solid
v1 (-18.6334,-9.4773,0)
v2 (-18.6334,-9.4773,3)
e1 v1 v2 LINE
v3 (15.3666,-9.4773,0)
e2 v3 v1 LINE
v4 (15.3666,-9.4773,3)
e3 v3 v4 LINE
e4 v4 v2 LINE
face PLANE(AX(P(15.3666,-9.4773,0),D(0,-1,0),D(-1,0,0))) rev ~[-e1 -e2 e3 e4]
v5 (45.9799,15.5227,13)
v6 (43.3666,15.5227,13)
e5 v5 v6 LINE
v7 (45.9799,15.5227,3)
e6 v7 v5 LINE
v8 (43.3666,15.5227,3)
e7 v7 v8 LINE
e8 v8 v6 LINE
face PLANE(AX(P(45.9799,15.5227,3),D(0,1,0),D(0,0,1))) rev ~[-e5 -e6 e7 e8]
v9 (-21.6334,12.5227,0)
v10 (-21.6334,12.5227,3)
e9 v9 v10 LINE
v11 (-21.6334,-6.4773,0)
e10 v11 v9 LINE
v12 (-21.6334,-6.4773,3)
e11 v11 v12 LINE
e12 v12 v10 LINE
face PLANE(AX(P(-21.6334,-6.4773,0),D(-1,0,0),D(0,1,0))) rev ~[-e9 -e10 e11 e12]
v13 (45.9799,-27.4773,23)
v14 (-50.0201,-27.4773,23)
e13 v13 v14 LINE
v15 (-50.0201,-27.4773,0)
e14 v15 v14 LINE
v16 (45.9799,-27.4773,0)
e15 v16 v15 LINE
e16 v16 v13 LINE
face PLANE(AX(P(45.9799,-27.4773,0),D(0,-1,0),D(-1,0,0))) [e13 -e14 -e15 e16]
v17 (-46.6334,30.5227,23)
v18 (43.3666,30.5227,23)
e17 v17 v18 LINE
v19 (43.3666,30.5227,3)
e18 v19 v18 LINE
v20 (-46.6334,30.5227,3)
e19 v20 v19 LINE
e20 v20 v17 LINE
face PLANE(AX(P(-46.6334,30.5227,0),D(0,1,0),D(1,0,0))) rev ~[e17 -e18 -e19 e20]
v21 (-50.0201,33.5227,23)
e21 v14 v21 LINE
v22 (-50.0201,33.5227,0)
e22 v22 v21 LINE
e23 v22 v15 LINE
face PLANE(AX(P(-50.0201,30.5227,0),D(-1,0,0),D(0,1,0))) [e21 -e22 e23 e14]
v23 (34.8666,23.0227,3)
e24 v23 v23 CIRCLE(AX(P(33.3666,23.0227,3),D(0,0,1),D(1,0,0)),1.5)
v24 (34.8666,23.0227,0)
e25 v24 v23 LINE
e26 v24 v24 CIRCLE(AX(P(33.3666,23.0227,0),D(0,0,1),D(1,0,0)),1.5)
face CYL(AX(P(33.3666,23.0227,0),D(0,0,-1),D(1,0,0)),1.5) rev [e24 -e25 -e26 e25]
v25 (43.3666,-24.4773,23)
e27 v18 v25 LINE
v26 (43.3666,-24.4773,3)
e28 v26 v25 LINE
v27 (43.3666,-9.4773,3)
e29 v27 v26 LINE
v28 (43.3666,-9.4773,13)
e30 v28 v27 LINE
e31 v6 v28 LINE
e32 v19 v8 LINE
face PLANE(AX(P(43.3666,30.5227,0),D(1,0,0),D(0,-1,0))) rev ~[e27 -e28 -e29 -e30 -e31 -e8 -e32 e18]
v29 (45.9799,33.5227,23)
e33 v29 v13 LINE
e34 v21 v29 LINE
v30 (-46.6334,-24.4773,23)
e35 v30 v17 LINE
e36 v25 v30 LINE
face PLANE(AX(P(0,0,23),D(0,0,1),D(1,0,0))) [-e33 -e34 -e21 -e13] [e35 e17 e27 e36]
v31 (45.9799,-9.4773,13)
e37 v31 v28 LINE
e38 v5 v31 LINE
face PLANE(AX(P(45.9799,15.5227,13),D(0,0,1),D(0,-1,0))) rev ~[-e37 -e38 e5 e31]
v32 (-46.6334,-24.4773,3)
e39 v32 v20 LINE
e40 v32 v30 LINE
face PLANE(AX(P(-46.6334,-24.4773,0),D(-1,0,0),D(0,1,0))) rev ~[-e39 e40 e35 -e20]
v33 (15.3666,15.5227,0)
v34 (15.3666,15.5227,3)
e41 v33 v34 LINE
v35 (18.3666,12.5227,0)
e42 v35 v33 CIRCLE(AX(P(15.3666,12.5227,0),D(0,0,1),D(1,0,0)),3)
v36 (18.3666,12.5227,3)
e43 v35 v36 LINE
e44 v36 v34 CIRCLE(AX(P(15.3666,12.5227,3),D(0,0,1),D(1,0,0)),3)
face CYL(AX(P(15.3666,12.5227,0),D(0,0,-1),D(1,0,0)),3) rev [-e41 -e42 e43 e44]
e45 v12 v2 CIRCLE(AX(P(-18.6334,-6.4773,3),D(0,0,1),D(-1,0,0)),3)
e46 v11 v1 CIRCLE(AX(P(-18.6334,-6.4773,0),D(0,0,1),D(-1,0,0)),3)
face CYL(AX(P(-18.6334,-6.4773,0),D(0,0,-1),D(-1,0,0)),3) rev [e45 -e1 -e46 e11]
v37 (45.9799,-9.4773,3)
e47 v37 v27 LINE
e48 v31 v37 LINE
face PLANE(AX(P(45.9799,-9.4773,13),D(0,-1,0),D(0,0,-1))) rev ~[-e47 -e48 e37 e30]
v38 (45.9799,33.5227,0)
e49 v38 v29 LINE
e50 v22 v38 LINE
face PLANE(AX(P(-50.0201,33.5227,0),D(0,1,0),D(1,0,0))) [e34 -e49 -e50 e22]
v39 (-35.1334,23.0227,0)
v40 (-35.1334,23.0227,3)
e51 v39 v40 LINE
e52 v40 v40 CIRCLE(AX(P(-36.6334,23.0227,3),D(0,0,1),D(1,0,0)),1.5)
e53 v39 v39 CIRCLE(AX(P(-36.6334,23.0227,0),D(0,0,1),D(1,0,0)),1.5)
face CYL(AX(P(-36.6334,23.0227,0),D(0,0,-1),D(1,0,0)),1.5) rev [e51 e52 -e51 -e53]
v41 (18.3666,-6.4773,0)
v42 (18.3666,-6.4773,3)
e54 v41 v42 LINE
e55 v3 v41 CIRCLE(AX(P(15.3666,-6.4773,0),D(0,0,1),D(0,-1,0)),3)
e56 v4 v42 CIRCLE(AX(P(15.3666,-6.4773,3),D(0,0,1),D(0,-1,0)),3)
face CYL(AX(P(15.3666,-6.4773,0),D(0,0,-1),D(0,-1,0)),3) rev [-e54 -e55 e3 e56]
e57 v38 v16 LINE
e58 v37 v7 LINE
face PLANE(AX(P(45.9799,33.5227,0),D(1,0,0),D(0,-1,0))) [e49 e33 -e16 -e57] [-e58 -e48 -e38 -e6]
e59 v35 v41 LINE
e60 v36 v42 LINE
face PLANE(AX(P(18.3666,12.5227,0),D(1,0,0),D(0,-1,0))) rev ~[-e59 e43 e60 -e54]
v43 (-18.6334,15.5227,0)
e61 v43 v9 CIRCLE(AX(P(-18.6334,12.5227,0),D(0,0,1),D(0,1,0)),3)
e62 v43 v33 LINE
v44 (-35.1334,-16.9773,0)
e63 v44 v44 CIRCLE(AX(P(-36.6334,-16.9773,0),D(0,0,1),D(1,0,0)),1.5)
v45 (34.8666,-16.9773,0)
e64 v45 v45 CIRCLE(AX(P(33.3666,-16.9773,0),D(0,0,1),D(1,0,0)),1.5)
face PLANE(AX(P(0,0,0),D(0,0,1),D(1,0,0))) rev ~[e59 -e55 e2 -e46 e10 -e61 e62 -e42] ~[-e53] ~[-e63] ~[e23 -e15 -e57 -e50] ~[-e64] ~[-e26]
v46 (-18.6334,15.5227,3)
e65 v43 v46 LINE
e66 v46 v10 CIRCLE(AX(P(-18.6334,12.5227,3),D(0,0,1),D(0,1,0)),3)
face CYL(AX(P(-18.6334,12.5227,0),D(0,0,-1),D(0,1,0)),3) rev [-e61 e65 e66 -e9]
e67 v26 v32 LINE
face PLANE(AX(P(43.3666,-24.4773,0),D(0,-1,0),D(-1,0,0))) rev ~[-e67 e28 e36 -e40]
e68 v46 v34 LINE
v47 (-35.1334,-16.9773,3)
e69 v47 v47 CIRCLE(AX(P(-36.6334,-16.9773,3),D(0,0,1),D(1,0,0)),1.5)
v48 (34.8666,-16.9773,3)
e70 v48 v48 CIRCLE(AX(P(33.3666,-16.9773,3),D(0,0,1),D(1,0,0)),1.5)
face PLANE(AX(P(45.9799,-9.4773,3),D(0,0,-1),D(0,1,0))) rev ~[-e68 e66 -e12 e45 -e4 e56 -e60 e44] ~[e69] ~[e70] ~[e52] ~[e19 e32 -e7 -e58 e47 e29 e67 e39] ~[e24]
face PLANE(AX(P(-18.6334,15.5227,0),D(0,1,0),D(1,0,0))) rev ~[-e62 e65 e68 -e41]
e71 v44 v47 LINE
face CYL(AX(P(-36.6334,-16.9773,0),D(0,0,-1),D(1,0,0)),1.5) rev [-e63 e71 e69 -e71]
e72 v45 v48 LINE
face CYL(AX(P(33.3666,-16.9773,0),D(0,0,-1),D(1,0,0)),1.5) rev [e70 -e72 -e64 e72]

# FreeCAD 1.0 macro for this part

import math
import FreeCAD as App
import Part
import Sketcher
from FreeCAD import Vector
Q = App.Units.Quantity

doc = App.newDocument("Part")
body = doc.addObject("PartDesign::Body", "Body")

# Sketch on XY plane
sketch1 = body.newObject("Sketcher::SketchObject", "Sketch")
sketch1.AttachmentSupport = (doc.getObject("XY_Plane"), [""])
sketch1.MapMode = "FlatFace"
sketch1.addGeometry([
    Part.LineSegment(Vector(46, 34, 0), Vector(-50, 34, 0)),  # 0
    Part.LineSegment(Vector(-50, 34, 0), Vector(-50, -27, 0)),  # 1
    Part.LineSegment(Vector(-50, -27, 0), Vector(46, -27, 0)),  # 2
    Part.LineSegment(Vector(46, -27, 0), Vector(46, 34, 0)),  # 3
    Part.LineSegment(Vector(-47, -24, 0), Vector(-47, 31, 0)),  # 4
    Part.LineSegment(Vector(-47, 31, 0), Vector(43, 31, 0)),  # 5
    Part.LineSegment(Vector(43, 31, 0), Vector(43, -24, 0)),  # 6
    Part.LineSegment(Vector(43, -24, 0), Vector(-47, -24, 0)),  # 7
], False)
sketch1.addConstraint([
    Sketcher.Constraint("Coincident", 0, 2, 1, 1),
    Sketcher.Constraint("Coincident", 1, 2, 2, 1),
    Sketcher.Constraint("Coincident", 2, 2, 3, 1),
    Sketcher.Constraint("Coincident", 3, 2, 0, 1),
    Sketcher.Constraint("Coincident", 4, 2, 5, 1),
    Sketcher.Constraint("Coincident", 5, 2, 6, 1),
    Sketcher.Constraint("Coincident", 6, 2, 7, 1),
    Sketcher.Constraint("Coincident", 7, 2, 4, 1),
    Sketcher.Constraint("Horizontal", 0),
    Sketcher.Constraint("Vertical", 1),
    Sketcher.Constraint("Horizontal", 2),
    Sketcher.Constraint("Vertical", 3),
    Sketcher.Constraint("Vertical", 4),
    Sketcher.Constraint("Horizontal", 5),
    Sketcher.Constraint("Vertical", 6),
    Sketcher.Constraint("Horizontal", 7),
    Sketcher.Constraint("DistanceX", 0, 2, 0, 1, Q("96 mm")),
    Sketcher.Constraint("DistanceX", 5, 1, 5, 2, Q("90 mm")),
    Sketcher.Constraint("DistanceY", 1, 2, 1, 1, Q("61 mm")),
    Sketcher.Constraint("DistanceY", 4, 1, 4, 2, Q("55 mm")),
    Sketcher.Constraint("DistanceY", 4, 2, 0, 2, Q("3 mm")),
    Sketcher.Constraint("DistanceX", 0, 2, -1, 1, Q("50.02 mm")),
    Sketcher.Constraint("DistanceY", -1, 1, 0, 2, Q("33.5227 mm")),
    Sketcher.Constraint("DistanceX", 4, 2, -1, 1, Q("46.6334 mm")),
])
pad1 = body.newObject("PartDesign::Pad", "Pad")
pad1.Profile = sketch1
pad1.Length = 23

# Sketch on XY plane
sketch2 = body.newObject("Sketcher::SketchObject", "Sketch001")
sketch2.AttachmentSupport = (doc.getObject("XY_Plane"), [""])
sketch2.MapMode = "FlatFace"
sketch2.addGeometry([
    Part.LineSegment(Vector(43.4, 30.5, 0), Vector(-46.6, 30.5, 0)),  # 0
    Part.LineSegment(Vector(-46.6, 30.5, 0), Vector(-46.6, -24.5, 0)),  # 1
    Part.LineSegment(Vector(-46.6, -24.5, 0), Vector(43.4, -24.5, 0)),  # 2
    Part.LineSegment(Vector(43.4, -24.5, 0), Vector(43.4, 30.5, 0)),  # 3
    Part.Circle(Vector(-36.6, -17, 0), Vector(0, 0, 1), 1.5),  # 4
    Part.Circle(Vector(33.4, -17, 0), Vector(0, 0, 1), 1.5),  # 5
    Part.Circle(Vector(-36.6, 23, 0), Vector(0, 0, 1), 1.5),  # 6
    Part.ArcOfCircle(Part.Circle(Vector(-18.6, 12.5, 0), Vector(0, 0, 1), 3), math.radians(90), math.radians(180)),  # 7
    Part.LineSegment(Vector(-18.6, 15.5, 0), Vector(15.4, 15.5, 0)),  # 8
    Part.ArcOfCircle(Part.Circle(Vector(15.4, 12.5, 0), Vector(0, 0, 1), 3), math.radians(0), math.radians(90)),  # 9
    Part.LineSegment(Vector(18.4, 12.5, 0), Vector(18.4, -6.5, 0)),  # 10
    Part.ArcOfCircle(Part.Circle(Vector(15.4, -6.5, 0), Vector(0, 0, 1), 3), math.radians(-90), math.radians(0)),  # 11
    Part.LineSegment(Vector(15.4, -9.5, 0), Vector(-18.6, -9.5, 0)),  # 12
    Part.ArcOfCircle(Part.Circle(Vector(-18.6, -6.5, 0), Vector(0, 0, 1), 3), math.radians(180), math.radians(270)),  # 13
    Part.LineSegment(Vector(-21.6, -6.5, 0), Vector(-21.6, 12.5, 0)),  # 14
    Part.Circle(Vector(33.4, 23, 0), Vector(0, 0, 1), 1.5),  # 15
], False)
sketch2.addConstraint([
    Sketcher.Constraint("Coincident", 0, 2, 1, 1),
    Sketcher.Constraint("Coincident", 1, 2, 2, 1),
    Sketcher.Constraint("Coincident", 2, 2, 3, 1),
    Sketcher.Constraint("Coincident", 3, 2, 0, 1),
    Sketcher.Constraint("Tangent", 7, 1, 8, 1),
    Sketcher.Constraint("Tangent", 8, 2, 9, 2),
    Sketcher.Constraint("Tangent", 9, 1, 10, 1),
    Sketcher.Constraint("Tangent", 10, 2, 11, 2),
    Sketcher.Constraint("Tangent", 11, 1, 12, 1),
    Sketcher.Constraint("Tangent", 12, 2, 13, 2),
    Sketcher.Constraint("Tangent", 13, 1, 14, 1),
    Sketcher.Constraint("Tangent", 14, 2, 7, 2),
    Sketcher.Constraint("Horizontal", 0),
    Sketcher.Constraint("Vertical", 1),
    Sketcher.Constraint("Horizontal", 2),
    Sketcher.Constraint("Vertical", 3),
    Sketcher.Constraint("Horizontal", 8),
    Sketcher.Constraint("Vertical", 10),
    Sketcher.Constraint("Horizontal", 12),
    Sketcher.Constraint("Vertical", 14),
    Sketcher.Constraint("Equal", 4, 5),
    Sketcher.Constraint("Equal", 5, 6),
    Sketcher.Constraint("Equal", 7, 9),
    Sketcher.Constraint("Equal", 9, 11),
    Sketcher.Constraint("Equal", 11, 13),
    Sketcher.Constraint("Equal", 6, 15),
    Sketcher.Constraint("Horizontal", 4, 3, 5, 3),
    Sketcher.Constraint("Horizontal", 6, 3, 15, 3),
    Sketcher.Constraint("Vertical", 4, 3, 6, 3),
    Sketcher.Constraint("Vertical", 5, 3, 15, 3),
    Sketcher.Constraint("Diameter", 4, Q("3 mm")),
    Sketcher.Constraint("Radius", 7, Q("3 mm")),
    Sketcher.Constraint("DistanceX", 0, 2, 0, 1, Q("90 mm")),
    Sketcher.Constraint("DistanceY", 1, 2, 1, 1, Q("55 mm")),
    Sketcher.Constraint("DistanceY", 7, 1, 0, 2, Q("15 mm")),
    Sketcher.Constraint("DistanceX", 9, 1, 15, 3, Q("15 mm")),
    Sketcher.Constraint("DistanceX", 9, 1, 3, 2, Q("25 mm")),
    Sketcher.Constraint("DistanceY", 12, 2, 7, 1, Q("25 mm")),
    Sketcher.Constraint("DistanceX", 4, 3, 13, 1, Q("15 mm")),
    Sketcher.Constraint("DistanceX", 8, 1, 8, 2, Q("34 mm")),
    Sketcher.Constraint("DistanceY", 4, 3, 6, 3, Q("40 mm")),
    Sketcher.Constraint("DistanceY", 7, 3, 6, 3, Q("10.5 mm")),
    Sketcher.Constraint("DistanceX", 4, 3, -1, 1, Q("36.6334 mm")),
    Sketcher.Constraint("DistanceY", 4, 3, -1, 1, Q("16.9773 mm")),
])
pad2 = body.newObject("PartDesign::Pad", "Pad001")
pad2.Profile = sketch2
pad2.Length = 3

# Sketch on YZ plane
sketch3 = body.newObject("Sketcher::SketchObject", "Sketch002")
sketch3.AttachmentSupport = (doc.getObject("YZ_Plane"), [""])
sketch3.MapMode = "FlatFace"
sketch3.AttachmentOffset = App.Placement(Vector(0, 0, 45.9799), App.Rotation())
sketch3.addGeometry([
    Part.LineSegment(Vector(16, 13, 0), Vector(-9, 13, 0)),
    Part.LineSegment(Vector(-9, 13, 0), Vector(-9, 3, 0)),
    Part.LineSegment(Vector(-9, 3, 0), Vector(16, 3, 0)),
    Part.LineSegment(Vector(16, 3, 0), Vector(16, 13, 0)),
], False)
sketch3.addConstraint([
    Sketcher.Constraint("Coincident", 0, 2, 1, 1),
    Sketcher.Constraint("Coincident", 1, 2, 2, 1),
    Sketcher.Constraint("Coincident", 2, 2, 3, 1),
    Sketcher.Constraint("Coincident", 3, 2, 0, 1),
    Sketcher.Constraint("Horizontal", 0),
    Sketcher.Constraint("Vertical", 1),
    Sketcher.Constraint("Horizontal", 2),
    Sketcher.Constraint("Vertical", 3),
    Sketcher.Constraint("DistanceX", 0, 2, 0, 1, Q("25 mm")),
    Sketcher.Constraint("DistanceY", 1, 2, 1, 1, Q("10 mm")),
    Sketcher.Constraint("DistanceY", -1, 1, 1, 2, Q("3 mm")),
    Sketcher.Constraint("DistanceX", 0, 2, -1, 1, Q("9.4773 mm")),
])
pocket1 = body.newObject("PartDesign::Pocket", "Pocket")
pocket1.Profile = sketch3
pocket1.Length = 3

doc.recompute()
